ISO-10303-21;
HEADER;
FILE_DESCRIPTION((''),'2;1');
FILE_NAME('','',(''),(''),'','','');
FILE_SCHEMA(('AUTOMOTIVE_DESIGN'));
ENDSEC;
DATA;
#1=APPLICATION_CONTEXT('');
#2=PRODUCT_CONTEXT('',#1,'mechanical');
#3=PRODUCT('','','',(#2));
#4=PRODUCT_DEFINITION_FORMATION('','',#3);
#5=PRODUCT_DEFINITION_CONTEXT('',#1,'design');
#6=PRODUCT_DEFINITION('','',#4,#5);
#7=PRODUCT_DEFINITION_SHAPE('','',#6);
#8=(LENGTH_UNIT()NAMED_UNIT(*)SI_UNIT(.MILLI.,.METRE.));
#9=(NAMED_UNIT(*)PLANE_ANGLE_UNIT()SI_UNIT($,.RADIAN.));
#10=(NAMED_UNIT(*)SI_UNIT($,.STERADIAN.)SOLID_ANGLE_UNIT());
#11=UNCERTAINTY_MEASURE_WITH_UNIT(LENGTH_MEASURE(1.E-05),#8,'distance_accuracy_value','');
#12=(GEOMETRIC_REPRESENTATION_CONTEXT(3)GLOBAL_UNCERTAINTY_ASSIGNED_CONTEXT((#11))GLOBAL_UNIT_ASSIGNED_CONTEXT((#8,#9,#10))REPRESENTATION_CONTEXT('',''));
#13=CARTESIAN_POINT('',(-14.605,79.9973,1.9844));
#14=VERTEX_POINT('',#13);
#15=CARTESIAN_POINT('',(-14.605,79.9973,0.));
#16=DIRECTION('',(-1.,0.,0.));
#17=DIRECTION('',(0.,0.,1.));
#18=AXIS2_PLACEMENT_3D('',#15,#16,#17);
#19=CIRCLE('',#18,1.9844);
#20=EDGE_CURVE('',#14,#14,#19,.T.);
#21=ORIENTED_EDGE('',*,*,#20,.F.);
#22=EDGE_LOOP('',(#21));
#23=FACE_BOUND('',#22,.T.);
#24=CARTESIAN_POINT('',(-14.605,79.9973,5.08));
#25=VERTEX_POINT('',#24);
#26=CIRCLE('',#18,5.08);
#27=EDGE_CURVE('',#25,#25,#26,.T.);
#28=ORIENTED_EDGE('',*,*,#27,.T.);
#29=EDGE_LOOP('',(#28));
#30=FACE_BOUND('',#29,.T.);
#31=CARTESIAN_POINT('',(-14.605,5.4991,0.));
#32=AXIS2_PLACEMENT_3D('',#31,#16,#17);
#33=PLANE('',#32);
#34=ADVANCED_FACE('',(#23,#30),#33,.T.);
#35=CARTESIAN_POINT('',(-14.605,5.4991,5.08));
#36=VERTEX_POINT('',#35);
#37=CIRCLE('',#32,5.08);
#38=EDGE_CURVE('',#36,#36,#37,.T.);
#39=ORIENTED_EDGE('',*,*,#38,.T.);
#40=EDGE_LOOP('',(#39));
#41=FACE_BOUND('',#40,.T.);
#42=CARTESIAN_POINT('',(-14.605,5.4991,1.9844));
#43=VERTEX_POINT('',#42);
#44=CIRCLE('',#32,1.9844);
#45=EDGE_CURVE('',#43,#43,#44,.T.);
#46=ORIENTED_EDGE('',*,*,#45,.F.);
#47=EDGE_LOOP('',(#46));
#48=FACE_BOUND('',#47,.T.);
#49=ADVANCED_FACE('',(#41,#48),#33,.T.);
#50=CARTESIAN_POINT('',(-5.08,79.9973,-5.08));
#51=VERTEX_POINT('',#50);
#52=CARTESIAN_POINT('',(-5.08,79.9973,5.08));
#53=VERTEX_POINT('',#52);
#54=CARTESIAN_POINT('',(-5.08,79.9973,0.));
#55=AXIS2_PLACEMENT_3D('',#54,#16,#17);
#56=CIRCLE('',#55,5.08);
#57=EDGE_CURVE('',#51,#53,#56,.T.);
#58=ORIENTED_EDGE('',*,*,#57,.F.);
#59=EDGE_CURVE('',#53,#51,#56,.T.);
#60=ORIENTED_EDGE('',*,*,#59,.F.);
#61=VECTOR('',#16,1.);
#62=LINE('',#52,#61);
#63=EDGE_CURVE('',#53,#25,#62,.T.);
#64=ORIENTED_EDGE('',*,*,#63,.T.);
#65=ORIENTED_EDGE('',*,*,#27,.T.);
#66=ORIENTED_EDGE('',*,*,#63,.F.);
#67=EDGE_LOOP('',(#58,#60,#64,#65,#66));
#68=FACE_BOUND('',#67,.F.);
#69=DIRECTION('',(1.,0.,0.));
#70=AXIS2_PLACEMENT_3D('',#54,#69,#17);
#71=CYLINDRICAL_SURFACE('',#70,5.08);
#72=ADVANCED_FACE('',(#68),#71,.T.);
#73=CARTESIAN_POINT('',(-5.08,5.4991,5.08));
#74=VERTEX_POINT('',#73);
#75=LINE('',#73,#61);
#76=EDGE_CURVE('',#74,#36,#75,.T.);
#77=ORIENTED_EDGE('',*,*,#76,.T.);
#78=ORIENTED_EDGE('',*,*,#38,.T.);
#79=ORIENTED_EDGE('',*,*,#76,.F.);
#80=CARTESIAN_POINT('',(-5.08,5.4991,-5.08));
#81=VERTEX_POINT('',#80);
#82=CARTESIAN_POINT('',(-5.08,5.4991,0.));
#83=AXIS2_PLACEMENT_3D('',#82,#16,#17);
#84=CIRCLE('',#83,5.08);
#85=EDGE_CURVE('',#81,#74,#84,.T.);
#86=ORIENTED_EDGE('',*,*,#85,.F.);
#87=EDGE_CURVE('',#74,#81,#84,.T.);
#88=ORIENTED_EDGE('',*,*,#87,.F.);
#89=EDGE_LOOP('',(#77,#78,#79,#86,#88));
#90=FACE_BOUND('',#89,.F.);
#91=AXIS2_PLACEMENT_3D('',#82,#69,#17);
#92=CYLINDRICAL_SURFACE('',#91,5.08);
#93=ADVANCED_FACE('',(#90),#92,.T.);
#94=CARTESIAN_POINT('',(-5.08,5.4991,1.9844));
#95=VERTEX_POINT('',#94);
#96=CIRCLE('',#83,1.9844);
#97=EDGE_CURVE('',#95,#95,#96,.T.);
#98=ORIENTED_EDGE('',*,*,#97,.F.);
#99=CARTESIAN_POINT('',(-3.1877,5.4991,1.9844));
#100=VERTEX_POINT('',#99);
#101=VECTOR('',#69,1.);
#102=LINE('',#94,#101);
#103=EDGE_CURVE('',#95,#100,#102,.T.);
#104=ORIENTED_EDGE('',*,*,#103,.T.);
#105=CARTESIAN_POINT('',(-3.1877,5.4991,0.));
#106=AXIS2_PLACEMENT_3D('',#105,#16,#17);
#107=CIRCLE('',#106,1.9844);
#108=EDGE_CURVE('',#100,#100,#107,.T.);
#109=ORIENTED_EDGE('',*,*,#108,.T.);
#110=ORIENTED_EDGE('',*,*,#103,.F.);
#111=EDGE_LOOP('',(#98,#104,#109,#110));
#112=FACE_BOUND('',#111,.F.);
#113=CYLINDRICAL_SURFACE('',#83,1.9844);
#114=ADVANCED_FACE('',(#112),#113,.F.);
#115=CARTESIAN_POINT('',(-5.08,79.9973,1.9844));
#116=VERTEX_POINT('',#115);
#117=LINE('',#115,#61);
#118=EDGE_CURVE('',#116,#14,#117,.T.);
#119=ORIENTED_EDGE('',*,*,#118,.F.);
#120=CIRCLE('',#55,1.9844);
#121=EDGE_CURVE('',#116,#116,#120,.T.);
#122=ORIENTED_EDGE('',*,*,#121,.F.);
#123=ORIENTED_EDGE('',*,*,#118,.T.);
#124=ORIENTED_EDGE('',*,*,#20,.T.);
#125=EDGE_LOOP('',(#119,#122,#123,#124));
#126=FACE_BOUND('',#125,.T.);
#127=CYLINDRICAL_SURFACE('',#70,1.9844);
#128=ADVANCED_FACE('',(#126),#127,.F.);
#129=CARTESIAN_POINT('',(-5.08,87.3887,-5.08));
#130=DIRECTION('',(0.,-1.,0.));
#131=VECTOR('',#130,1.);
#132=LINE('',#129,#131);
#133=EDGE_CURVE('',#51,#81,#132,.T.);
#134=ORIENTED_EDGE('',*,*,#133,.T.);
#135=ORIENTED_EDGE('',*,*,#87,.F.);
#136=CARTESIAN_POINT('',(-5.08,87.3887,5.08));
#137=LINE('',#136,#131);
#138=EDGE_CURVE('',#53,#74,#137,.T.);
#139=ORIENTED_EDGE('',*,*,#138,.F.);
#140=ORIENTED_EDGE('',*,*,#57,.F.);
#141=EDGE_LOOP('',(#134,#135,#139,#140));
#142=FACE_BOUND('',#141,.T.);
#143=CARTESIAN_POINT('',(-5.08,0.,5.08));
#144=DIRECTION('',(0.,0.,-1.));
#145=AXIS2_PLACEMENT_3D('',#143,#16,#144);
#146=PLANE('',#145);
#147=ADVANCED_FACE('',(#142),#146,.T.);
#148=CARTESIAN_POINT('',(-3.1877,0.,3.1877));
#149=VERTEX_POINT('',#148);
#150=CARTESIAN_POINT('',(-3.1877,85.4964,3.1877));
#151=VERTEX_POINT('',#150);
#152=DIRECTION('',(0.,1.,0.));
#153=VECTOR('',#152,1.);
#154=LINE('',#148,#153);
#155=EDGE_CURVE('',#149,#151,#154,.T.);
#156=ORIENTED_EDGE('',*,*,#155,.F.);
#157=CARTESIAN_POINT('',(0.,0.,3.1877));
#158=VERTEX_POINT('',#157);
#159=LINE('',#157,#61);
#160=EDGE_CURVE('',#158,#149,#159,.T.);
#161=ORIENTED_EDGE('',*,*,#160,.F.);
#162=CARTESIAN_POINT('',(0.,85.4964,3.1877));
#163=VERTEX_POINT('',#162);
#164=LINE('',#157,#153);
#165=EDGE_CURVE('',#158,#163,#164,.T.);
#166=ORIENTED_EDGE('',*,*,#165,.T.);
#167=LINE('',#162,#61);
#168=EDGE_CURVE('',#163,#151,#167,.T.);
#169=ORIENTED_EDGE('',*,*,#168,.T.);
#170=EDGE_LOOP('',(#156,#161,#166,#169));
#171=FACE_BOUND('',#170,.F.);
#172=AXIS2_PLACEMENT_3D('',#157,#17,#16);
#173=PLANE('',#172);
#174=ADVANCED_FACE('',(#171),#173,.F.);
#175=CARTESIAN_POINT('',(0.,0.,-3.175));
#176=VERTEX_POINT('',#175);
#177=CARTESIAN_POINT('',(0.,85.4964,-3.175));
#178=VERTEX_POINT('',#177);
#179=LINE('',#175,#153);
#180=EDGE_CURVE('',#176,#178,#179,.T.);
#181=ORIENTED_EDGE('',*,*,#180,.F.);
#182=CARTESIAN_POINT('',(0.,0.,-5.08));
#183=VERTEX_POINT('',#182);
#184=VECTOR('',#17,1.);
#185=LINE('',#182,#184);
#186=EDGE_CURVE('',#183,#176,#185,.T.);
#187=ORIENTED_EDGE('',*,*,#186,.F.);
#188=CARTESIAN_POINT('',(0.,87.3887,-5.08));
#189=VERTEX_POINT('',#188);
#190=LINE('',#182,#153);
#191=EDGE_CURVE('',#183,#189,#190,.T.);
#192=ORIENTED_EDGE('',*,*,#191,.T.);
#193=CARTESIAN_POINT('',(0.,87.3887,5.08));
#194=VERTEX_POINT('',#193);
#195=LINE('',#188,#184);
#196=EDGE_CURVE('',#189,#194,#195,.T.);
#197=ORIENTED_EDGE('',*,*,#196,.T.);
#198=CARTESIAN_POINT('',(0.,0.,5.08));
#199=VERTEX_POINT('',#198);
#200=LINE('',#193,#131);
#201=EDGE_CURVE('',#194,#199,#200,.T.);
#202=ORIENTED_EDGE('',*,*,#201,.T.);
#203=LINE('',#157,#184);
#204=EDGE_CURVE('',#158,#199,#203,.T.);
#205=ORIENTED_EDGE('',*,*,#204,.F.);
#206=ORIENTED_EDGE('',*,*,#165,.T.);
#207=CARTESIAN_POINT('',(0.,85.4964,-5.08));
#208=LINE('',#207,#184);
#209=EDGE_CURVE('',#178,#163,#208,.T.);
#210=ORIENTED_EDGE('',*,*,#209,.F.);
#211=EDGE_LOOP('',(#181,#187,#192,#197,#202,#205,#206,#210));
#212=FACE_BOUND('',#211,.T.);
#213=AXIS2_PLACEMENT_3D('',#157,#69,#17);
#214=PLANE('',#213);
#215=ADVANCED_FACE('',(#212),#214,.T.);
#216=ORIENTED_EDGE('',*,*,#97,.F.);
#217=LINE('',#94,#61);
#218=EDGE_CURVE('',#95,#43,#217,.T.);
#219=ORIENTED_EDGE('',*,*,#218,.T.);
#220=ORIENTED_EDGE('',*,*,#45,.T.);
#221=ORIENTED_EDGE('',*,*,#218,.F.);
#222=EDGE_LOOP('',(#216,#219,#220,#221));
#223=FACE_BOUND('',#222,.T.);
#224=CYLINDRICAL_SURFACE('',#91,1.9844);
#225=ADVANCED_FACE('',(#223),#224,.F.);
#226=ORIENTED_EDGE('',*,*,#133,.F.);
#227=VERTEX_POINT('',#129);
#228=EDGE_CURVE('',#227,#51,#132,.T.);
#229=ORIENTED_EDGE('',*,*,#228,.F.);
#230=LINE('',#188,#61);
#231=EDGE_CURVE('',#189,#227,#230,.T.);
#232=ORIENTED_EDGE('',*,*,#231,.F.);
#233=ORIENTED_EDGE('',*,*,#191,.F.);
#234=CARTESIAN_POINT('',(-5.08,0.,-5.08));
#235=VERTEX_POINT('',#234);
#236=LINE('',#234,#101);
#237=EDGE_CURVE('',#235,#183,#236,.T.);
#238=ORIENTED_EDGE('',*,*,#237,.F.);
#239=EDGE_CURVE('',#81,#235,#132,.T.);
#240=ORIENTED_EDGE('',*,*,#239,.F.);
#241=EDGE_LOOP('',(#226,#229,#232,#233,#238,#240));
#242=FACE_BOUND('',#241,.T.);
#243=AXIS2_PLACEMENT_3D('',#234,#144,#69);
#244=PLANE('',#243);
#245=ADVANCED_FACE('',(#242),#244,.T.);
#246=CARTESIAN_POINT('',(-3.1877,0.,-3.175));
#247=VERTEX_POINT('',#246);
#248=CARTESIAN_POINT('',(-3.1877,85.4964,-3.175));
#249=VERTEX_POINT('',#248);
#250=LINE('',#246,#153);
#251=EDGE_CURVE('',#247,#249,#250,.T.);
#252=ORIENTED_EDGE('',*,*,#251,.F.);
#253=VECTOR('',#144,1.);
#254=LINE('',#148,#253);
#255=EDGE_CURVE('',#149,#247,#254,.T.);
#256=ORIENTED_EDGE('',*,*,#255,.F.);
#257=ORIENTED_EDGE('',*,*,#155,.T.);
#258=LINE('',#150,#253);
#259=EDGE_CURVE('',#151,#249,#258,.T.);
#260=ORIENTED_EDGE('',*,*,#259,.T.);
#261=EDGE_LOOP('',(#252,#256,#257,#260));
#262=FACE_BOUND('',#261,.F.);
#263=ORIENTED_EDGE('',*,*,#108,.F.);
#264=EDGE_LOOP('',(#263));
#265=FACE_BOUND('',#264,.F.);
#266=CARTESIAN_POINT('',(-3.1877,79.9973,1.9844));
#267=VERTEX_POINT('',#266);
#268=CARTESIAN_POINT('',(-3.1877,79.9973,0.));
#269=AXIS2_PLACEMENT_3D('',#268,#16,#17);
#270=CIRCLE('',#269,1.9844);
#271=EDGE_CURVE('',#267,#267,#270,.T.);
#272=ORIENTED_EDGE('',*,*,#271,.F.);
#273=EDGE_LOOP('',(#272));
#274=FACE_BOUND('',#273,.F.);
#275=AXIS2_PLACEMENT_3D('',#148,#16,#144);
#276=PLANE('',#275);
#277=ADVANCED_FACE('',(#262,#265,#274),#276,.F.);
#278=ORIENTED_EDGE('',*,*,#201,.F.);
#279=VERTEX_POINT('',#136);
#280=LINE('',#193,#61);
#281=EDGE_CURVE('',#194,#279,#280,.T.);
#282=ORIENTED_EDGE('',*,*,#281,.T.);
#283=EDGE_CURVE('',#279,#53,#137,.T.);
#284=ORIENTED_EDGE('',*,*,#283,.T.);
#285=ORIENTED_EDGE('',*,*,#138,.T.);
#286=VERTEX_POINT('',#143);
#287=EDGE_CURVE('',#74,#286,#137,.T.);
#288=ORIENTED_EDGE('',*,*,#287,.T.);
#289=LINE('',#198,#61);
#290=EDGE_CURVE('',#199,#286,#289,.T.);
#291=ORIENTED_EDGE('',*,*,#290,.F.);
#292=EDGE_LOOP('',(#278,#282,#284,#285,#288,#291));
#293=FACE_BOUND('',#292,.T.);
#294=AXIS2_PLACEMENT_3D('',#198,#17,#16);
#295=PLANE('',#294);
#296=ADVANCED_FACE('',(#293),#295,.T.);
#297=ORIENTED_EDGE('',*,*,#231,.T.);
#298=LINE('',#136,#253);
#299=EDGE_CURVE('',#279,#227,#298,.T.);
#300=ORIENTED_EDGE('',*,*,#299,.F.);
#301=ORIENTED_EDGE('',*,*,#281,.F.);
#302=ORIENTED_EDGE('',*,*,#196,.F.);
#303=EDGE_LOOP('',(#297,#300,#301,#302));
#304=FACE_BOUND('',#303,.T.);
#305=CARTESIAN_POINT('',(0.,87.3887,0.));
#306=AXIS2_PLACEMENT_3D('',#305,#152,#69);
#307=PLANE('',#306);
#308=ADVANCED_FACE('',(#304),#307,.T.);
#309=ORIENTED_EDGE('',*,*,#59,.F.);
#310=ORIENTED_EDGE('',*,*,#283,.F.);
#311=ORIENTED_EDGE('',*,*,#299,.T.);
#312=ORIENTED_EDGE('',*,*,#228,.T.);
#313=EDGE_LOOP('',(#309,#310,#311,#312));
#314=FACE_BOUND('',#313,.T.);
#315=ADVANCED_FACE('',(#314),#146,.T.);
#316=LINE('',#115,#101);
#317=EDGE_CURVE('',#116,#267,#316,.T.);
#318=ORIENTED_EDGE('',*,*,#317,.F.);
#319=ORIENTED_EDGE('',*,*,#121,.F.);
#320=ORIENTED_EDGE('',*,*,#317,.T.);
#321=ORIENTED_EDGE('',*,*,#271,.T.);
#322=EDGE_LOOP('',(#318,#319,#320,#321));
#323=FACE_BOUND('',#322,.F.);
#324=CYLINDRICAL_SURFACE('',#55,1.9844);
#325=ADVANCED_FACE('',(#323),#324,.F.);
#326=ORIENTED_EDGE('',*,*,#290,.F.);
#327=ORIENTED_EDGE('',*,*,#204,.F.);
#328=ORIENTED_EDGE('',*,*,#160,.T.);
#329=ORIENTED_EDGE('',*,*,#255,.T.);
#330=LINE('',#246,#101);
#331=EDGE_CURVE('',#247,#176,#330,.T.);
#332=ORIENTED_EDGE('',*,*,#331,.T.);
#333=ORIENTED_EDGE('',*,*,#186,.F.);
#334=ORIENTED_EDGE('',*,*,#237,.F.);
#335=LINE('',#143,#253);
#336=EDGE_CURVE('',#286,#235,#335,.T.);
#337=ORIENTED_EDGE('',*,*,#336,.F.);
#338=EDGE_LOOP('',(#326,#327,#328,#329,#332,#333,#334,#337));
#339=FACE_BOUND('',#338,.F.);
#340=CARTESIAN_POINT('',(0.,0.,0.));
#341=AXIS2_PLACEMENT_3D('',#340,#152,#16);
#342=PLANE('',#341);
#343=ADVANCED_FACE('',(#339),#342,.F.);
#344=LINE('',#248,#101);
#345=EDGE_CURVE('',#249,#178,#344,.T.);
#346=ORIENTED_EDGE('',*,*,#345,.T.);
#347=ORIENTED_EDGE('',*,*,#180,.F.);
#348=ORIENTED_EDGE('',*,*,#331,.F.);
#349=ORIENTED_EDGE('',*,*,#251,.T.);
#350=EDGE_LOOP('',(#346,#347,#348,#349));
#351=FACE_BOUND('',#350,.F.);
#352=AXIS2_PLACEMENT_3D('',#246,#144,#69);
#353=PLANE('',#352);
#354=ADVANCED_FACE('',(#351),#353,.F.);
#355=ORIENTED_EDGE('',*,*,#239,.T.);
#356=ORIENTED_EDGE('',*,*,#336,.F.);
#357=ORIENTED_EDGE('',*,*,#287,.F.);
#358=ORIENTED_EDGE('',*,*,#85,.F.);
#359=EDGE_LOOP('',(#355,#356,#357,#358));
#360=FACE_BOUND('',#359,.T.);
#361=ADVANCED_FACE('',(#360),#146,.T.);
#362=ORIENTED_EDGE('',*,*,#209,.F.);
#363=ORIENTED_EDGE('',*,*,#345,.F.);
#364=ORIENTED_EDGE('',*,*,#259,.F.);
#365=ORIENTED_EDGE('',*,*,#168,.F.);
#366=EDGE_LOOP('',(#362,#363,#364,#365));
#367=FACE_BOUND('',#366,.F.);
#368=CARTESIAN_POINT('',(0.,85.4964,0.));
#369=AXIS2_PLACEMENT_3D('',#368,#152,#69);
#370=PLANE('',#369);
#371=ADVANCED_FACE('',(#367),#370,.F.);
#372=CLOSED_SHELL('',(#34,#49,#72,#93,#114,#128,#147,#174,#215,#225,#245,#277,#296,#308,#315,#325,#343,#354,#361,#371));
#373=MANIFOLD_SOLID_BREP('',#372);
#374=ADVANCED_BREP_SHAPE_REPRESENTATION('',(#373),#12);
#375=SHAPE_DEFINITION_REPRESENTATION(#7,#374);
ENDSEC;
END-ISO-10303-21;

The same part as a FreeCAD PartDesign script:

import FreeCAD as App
import Part
import Sketcher

V = App.Vector
Q = App.Units.Quantity

doc = App.newDocument("Part")
body = doc.addObject("PartDesign::Body", "Body")

sketch1 = doc.addObject("Sketcher::SketchObject", "Sketch")
body.addObject(sketch1)
sketch1.AttachmentSupport = (doc.XZ_Plane, [""])
sketch1.MapMode = "FlatFace"
sketch1.addGeometry([
    Part.LineSegment(V(0, 5.1, 0), V(0, 3.2, 0)),
    Part.LineSegment(V(0, 3.2, 0), V(-3.2, 3.2, 0)),
    Part.LineSegment(V(-3.2, 3.2, 0), V(-3.2, -3.2, 0)),
    Part.LineSegment(V(-3.2, -3.2, 0), V(0, -3.2, 0)),
    Part.LineSegment(V(0, -3.2, 0), V(0, -5.1, 0)),
    Part.LineSegment(V(0, -5.1, 0), V(-5.1, -5.1, 0)),
    Part.LineSegment(V(-5.1, -5.1, 0), V(-5.1, 5.1, 0)),
    Part.LineSegment(V(-5.1, 5.1, 0), V(0, 5.1, 0)),
], False)
sketch1.addConstraint([
    Sketcher.Constraint("Coincident", 0, 2, 1, 1),
    Sketcher.Constraint("Coincident", 1, 2, 2, 1),
    Sketcher.Constraint("Coincident", 2, 2, 3, 1),
    Sketcher.Constraint("Coincident", 3, 2, 4, 1),
    Sketcher.Constraint("Coincident", 4, 2, 5, 1),
    Sketcher.Constraint("Coincident", 5, 2, 6, 1),
    Sketcher.Constraint("Coincident", 6, 2, 7, 1),
    Sketcher.Constraint("Coincident", 7, 2, 0, 1),
    Sketcher.Constraint("Vertical", 0),
    Sketcher.Constraint("Horizontal", 1),
    Sketcher.Constraint("Vertical", 2),
    Sketcher.Constraint("Horizontal", 3),
    Sketcher.Constraint("Vertical", 4),
    Sketcher.Constraint("Horizontal", 5),
    Sketcher.Constraint("Vertical", 6),
    Sketcher.Constraint("Horizontal", 7),
    Sketcher.Constraint("Symmetric", 4, 2, 7, 2, -1, 1),
    Sketcher.Constraint("PointOnObject", 0, 2, -2),
    Sketcher.Constraint("DistanceX", 5, 2, 5, 1, Q("0.2 in")),
    Sketcher.Constraint("DistanceY", 6, 1, 6, 2, Q("0.4 in")),
    Sketcher.Constraint("DistanceX", 1, 2, 1, 1, Q("0.1255 in")),
    Sketcher.Constraint("DistanceY", -1, 1, 0, 2, Q("0.1255 in")),
    Sketcher.Constraint("DistanceY", 4, 2, 4, 1, Q("0.075 in")),
])
pad1 = doc.addObject("PartDesign::Pad", "Pad")
body.addObject(pad1)
pad1.Profile = sketch1
pad1.Length = Q("3.366 in")
pad1.Reversed = True

sketch2 = doc.addObject("Sketcher::SketchObject", "Sketch001")
body.addObject(sketch2)
sketch2.AttachmentSupport = (doc.XZ_Plane, [""])
sketch2.MapMode = "FlatFace"
sketch2.AttachmentOffset = App.Placement(V(0, 0, -3.366 * 25.4), App.Rotation())
sketch2.addGeometry([
    Part.LineSegment(V(-5, 5, 0), V(0, 5, 0)),
    Part.LineSegment(V(0, 5, 0), V(0, -5, 0)),
    Part.LineSegment(V(0, -5, 0), V(-5, -5, 0)),
    Part.LineSegment(V(-5, -5, 0), V(-5, 5, 0)),
], False)
sketch2.addConstraint([
    Sketcher.Constraint("Coincident", 0, 2, 1, 1),
    Sketcher.Constraint("Coincident", 1, 2, 2, 1),
    Sketcher.Constraint("Coincident", 2, 2, 3, 1),
    Sketcher.Constraint("Coincident", 3, 2, 0, 1),
    Sketcher.Constraint("Horizontal", 0),
    Sketcher.Constraint("Vertical", 1),
    Sketcher.Constraint("Horizontal", 2),
    Sketcher.Constraint("Vertical", 3),
    Sketcher.Constraint("Symmetric", 0, 2, 1, 2, -1, 1),
    Sketcher.Constraint("DistanceX", 0, 1, 0, 2, Q("0.2 in")),
    Sketcher.Constraint("DistanceY", 1, 2, 1, 1, Q("0.4 in")),
])
pad2 = doc.addObject("PartDesign::Pad", "Pad001")
body.addObject(pad2)
pad2.Profile = sketch2
pad2.Length = Q("0.0745 in")
pad2.Reversed = True

sketch3 = doc.addObject("Sketcher::SketchObject", "Sketch002")
body.addObject(sketch3)
sketch3.AttachmentSupport = (doc.YZ_Plane, [""])
sketch3.MapMode = "FlatFace"
sketch3.AttachmentOffset = App.Placement(V(0, 0, -0.2 * 25.4), App.Rotation())
sketch3.addGeometry([
    Part.Circle(V(5.5, 0, 0), V(0, 0, 1), 2),
    Part.Circle(V(80, 0, 0), V(0, 0, 1), 2),
], False)
sketch3.addConstraint([
    Sketcher.Constraint("Equal", 0, 1),
    Sketcher.Constraint("PointOnObject", 0, 3, -1),
    Sketcher.Constraint("PointOnObject", 1, 3, -1),
    Sketcher.Constraint("Diameter", 0, Q("0.156252 in")),
    Sketcher.Constraint("DistanceX", 0, 3, 1, 3, Q("2.933 in")),
    Sketcher.Constraint("DistanceX", -1, 1, 0, 3, Q("0.2165 in")),
])
pocket1 = doc.addObject("PartDesign::Pocket", "Pocket")
body.addObject(pocket1)
pocket1.Profile = sketch3
pocket1.Length = Q("0.0745 in")
pocket1.Reversed = True

sketch4 = doc.addObject("Sketcher::SketchObject", "Sketch003")
body.addObject(sketch4)
sketch4.AttachmentSupport = (doc.YZ_Plane, [""])
sketch4.MapMode = "FlatFace"
sketch4.AttachmentOffset = App.Placement(V(0, 0, -0.2 * 25.4), App.Rotation())
sketch4.addGeometry([
    Part.Circle(V(5.5, 0, 0), V(0, 0, 1), 5.1),
    Part.Circle(V(5.5, 0, 0), V(0, 0, 1), 2),
    Part.Circle(V(80, 0, 0), V(0, 0, 1), 5.1),
    Part.Circle(V(80, 0, 0), V(0, 0, 1), 2),
], False)
sketch4.addConstraint([
    Sketcher.Constraint("Coincident", 1, 3, 0, 3),
    Sketcher.Constraint("Coincident", 3, 3, 2, 3),
    Sketcher.Constraint("Equal", 0, 2),
    Sketcher.Constraint("Equal", 1, 3),
    Sketcher.Constraint("PointOnObject", 0, 3, -1),
    Sketcher.Constraint("PointOnObject", 2, 3, -1),
    Sketcher.Constraint("Diameter", 0, Q("0.4 in")),
    Sketcher.Constraint("Diameter", 1, Q("0.156252 in")),
    Sketcher.Constraint("DistanceX", 0, 3, 2, 3, Q("2.933 in")),
    Sketcher.Constraint("DistanceX", -1, 1, 0, 3, Q("0.2165 in")),
])
pad3 = doc.addObject("PartDesign::Pad", "Pad002")
body.addObject(pad3)
pad3.Profile = sketch4
pad3.Length = Q("0.375 in")
pad3.Reversed = True

doc.recompute()
